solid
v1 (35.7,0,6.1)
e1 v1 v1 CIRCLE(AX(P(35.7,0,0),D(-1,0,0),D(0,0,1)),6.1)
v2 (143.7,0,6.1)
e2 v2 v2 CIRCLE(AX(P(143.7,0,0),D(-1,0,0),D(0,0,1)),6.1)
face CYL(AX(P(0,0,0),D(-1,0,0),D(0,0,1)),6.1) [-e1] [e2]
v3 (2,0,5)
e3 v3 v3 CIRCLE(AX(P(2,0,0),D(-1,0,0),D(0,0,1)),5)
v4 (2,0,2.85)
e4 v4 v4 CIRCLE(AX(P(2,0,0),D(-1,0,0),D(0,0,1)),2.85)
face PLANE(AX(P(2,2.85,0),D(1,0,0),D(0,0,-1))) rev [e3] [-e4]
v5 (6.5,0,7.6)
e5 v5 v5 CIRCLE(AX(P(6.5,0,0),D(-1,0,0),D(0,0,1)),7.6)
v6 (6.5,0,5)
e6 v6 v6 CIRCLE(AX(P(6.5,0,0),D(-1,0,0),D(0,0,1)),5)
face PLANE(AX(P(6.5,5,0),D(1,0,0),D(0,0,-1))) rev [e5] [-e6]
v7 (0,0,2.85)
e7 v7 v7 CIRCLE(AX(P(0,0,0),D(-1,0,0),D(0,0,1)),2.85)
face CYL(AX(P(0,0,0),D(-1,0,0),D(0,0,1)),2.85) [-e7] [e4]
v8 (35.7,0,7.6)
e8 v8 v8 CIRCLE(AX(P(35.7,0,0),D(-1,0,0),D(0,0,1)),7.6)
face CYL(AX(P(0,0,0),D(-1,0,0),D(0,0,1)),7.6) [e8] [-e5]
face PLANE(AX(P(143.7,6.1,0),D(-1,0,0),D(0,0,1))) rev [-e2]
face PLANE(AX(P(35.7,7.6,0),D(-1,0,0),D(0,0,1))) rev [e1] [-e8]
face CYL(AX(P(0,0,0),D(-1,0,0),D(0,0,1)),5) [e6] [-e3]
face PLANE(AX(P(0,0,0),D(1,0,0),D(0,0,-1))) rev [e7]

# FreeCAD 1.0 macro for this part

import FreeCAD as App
import Part
import Sketcher

V = App.Vector
Q = App.Units.Quantity


def add_polygon(sketch, points):
    """Adds a closed chain of lines whose ends are joined by coincident constraints."""
    first, n = sketch.GeometryCount, len(points)
    for a, b in zip(points, points[1:] + points[:1]):
        sketch.addGeometry(Part.LineSegment(App.Vector(*a, 0), App.Vector(*b, 0)), False)
    for i in range(n):
        sketch.addConstraint(Sketcher.Constraint("Coincident", first + i, 2, first + (i + 1) % n, 1))

doc = App.newDocument("Part")
params = doc.addObject("Spreadsheet::Sheet", "Params")
for row, (alias, value) in enumerate([
    ("sketch1_width", "108 mm"),
    ("sketch1_width2", "2 mm"),
    ("sketch1_width3", "143.7 mm"),
    ("sketch1_width4", "29.2 mm"),
    ("sketch1_height", "6.1 mm"),
    ("revolution_angle", "360 deg"),
], start=1):
    params.set(f"A{row}", alias)
    params.set(f"B{row}", "=" + value)
    params.setAlias(f"B{row}", alias)

body = doc.addObject("PartDesign::Body", "Body")

sketch1 = body.newObject("Sketcher::SketchObject", "Sketch")
sketch1.AttachmentSupport = (doc.getObject("XY_Plane"), [""])
sketch1.MapMode = "FlatFace"
add_polygon(sketch1, [(0, 2.85), (0, 0), (143.7, 0), (143.7, 6.1), (35.7, 6.1), (35.7, 7.6), (6.5, 7.6), (6.5, 5), (2, 5), (2, 2.85)])
sketch1.addConstraint([
    Sketcher.Constraint("Vertical", 0),
    Sketcher.Constraint("Horizontal", 1),
    Sketcher.Constraint("Vertical", 2),
    Sketcher.Constraint("Horizontal", 3),
    Sketcher.Constraint("Vertical", 4),
    Sketcher.Constraint("Horizontal", 5),
    Sketcher.Constraint("Vertical", 6),
    Sketcher.Constraint("Horizontal", 7),
    Sketcher.Constraint("Vertical", 8),
    Sketcher.Constraint("Horizontal", 9),
    Sketcher.Constraint("Coincident", 0, 2, -1, 1),
    Sketcher.Constraint("DistanceX", 3, 2, 3, 1, Q("108 mm")),
    Sketcher.Constraint("DistanceX", 9, 2, 9, 1, Q("2 mm")),
    Sketcher.Constraint("DistanceX", 1, 1, 1, 2, Q("143.7 mm")),
    Sketcher.Constraint("DistanceX", 5, 2, 5, 1, Q("29.2 mm")),
    Sketcher.Constraint("DistanceY", 2, 1, 2, 2, Q("6.1 mm")),
    Sketcher.Constraint("DistanceY", 4, 1, 4, 2, Q("1.5 mm")),
    Sketcher.Constraint("DistanceY", 6, 2, 6, 1, Q("2.6 mm")),
    Sketcher.Constraint("DistanceY", 0, 2, 0, 1, Q("2.85 mm")),
])
sketch1.setExpression("Constraints[21]", "Params.sketch1_width")
sketch1.setExpression("Constraints[22]", "Params.sketch1_width2")
sketch1.setExpression("Constraints[23]", "Params.sketch1_width3")
sketch1.setExpression("Constraints[24]", "Params.sketch1_width4")
sketch1.setExpression("Constraints[25]", "Params.sketch1_height")
revolution = body.newObject("PartDesign::Revolution", "Revolution")
revolution.Profile = sketch1
revolution.ReferenceAxis = (sketch1, ["H_Axis"])
revolution.setExpression("Angle", "Params.revolution_angle")

doc.recompute()
